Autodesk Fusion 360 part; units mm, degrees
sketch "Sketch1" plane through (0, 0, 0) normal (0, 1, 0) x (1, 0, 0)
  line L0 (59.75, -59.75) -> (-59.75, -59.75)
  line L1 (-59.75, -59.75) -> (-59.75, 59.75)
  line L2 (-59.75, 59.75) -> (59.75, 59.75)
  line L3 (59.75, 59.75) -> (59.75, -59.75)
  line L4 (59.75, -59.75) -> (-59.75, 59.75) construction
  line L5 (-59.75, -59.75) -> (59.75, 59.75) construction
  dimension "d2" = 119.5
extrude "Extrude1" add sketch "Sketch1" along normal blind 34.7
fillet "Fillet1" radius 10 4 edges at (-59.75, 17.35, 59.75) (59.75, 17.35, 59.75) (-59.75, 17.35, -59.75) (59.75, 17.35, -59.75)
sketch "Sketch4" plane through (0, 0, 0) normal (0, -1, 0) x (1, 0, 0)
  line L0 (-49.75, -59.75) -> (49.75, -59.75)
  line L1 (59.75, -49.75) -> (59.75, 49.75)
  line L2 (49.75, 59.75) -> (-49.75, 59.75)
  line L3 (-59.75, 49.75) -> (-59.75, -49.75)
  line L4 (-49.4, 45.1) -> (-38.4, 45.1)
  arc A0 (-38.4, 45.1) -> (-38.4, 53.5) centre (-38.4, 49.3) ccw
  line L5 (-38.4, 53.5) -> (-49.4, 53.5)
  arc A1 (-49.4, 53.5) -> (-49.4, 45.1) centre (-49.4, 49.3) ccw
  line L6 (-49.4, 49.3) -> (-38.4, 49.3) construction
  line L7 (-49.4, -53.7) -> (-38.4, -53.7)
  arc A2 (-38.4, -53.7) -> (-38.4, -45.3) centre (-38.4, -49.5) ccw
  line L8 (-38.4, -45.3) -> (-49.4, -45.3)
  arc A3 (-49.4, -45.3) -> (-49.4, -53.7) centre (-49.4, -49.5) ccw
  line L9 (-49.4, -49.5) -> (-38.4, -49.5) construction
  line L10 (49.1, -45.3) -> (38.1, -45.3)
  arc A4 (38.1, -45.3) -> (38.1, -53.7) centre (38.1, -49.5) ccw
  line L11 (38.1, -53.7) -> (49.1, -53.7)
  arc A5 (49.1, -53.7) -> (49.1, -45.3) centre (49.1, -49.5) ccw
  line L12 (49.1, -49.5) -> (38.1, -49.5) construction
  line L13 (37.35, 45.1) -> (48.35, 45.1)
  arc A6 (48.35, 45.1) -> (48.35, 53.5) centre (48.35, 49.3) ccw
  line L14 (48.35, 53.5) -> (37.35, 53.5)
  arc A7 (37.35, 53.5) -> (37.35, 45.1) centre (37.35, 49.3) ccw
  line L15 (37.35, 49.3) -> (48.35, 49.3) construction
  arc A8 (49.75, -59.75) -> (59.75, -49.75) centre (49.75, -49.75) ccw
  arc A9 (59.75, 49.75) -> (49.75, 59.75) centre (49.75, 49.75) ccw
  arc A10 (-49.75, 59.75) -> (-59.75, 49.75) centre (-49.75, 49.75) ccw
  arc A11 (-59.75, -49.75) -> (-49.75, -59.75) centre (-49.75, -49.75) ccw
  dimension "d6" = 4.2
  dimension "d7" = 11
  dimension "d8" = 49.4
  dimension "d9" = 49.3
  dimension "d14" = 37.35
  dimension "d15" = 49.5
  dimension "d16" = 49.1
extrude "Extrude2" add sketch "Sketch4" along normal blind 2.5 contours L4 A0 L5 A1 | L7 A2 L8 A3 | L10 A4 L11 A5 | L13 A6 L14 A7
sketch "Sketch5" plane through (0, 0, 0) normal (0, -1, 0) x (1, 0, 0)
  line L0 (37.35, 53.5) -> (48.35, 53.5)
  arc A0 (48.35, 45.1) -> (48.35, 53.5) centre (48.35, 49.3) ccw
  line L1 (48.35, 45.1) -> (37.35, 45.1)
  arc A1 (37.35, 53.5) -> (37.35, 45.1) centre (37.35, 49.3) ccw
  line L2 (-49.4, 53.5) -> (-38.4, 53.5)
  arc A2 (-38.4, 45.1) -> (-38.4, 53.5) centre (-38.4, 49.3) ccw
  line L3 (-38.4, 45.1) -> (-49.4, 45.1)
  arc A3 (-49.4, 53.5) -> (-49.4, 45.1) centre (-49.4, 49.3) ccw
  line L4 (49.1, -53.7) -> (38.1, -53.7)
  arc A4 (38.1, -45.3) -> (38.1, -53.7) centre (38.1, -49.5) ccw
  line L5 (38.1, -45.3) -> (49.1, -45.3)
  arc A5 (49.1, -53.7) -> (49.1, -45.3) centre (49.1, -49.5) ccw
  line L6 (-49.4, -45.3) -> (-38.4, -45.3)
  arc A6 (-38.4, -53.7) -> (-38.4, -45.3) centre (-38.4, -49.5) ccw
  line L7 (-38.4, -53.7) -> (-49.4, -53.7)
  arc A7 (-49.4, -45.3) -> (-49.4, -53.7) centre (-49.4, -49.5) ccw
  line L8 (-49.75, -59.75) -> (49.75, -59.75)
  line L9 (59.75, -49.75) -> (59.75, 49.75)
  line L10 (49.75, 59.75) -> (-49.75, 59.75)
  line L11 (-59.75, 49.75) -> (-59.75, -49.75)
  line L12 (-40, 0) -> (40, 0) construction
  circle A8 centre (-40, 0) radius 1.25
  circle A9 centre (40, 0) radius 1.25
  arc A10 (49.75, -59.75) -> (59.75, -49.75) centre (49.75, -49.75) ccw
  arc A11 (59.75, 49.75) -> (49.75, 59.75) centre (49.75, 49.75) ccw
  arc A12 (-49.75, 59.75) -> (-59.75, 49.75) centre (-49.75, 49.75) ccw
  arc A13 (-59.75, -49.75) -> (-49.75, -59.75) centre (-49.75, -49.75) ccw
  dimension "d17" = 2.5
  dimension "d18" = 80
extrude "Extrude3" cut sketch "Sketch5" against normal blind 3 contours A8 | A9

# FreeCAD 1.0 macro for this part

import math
import FreeCAD as App
import Part
import Sketcher
from FreeCAD import Vector


def edges_at(feature, points):
    """Names of the edges that pass closest to the given points."""
    edges = feature.Shape.Edges
    near = lambda p: min(range(len(edges)), key=lambda i: edges[i].distToShape(Part.Vertex(*p))[0])
    return sorted({f"Edge{near(p) + 1}" for p in points})

doc = App.newDocument("Part")
params = doc.addObject("Spreadsheet::Sheet", "Params")
for row, (alias, value) in enumerate([
    ("sketch1_width", "119.5 mm"),
    ("pad1_length", "34.7 mm"),
    ("fillet_radius", "10 mm"),
    ("sketch2_radius", "4.2 mm"),
    ("sketch2_width", "11 mm"),
    ("pad2_length", "2.5 mm"),
    ("sketch3_diameter", "2.5 mm"),
    ("pocket1_length", "3 mm"),
], start=1):
    params.set(f"A{row}", alias)
    params.set(f"B{row}", "=" + value)
    params.setAlias(f"B{row}", alias)

body = doc.addObject("PartDesign::Body", "Body")

# Sketch on XZ plane
sketch1 = doc.addObject("Sketcher::SketchObject", "Sketch")
body.addObject(sketch1)
sketch1.AttachmentSupport = (doc.XZ_Plane, [""])
sketch1.MapMode = "FlatFace"
sketch1.addGeometry(Part.LineSegment(Vector(-59.75, 59.75, 0), Vector(59.75, 59.75, 0)), False)
sketch1.addGeometry(Part.LineSegment(Vector(59.75, 59.75, 0), Vector(59.75, -59.75, 0)), False)
sketch1.addGeometry(Part.LineSegment(Vector(59.75, -59.75, 0), Vector(-59.75, -59.75, 0)), False)
sketch1.addGeometry(Part.LineSegment(Vector(-59.75, -59.75, 0), Vector(-59.75, 59.75, 0)), False)
sketch1.addConstraint(Sketcher.Constraint("Coincident", 0, 2, 1, 1))
sketch1.addConstraint(Sketcher.Constraint("Coincident", 1, 2, 2, 1))
sketch1.addConstraint(Sketcher.Constraint("Coincident", 2, 2, 3, 1))
sketch1.addConstraint(Sketcher.Constraint("Coincident", 3, 2, 0, 1))
sketch1.addConstraint(Sketcher.Constraint("Horizontal", 0))
sketch1.addConstraint(Sketcher.Constraint("Vertical", 1))
sketch1.addConstraint(Sketcher.Constraint("Horizontal", 2))
sketch1.addConstraint(Sketcher.Constraint("Vertical", 3))
sketch1.addConstraint(Sketcher.Constraint("Symmetric", 0, 2, 2, 2, -1, 1))
sketch1.addConstraint(Sketcher.Constraint("Equal", 2, 1))
sketch1.addConstraint(Sketcher.Constraint("DistanceX", 0, 1, 0, 2, 119.5))
sketch1.setExpression("Constraints[10]", "Params.sketch1_width")
pad1 = doc.addObject("PartDesign::Pad", "Pad")
body.addObject(pad1)
pad1.Profile = sketch1
pad1.setExpression("Length", "Params.pad1_length")
pad1.Reversed = True
doc.recompute()

fillet = doc.addObject("PartDesign::Fillet", "Fillet")
body.addObject(fillet)
fillet.Base = (pad1, edges_at(pad1, [
    (-59.75, 17.35, 59.75),
    (59.75, 17.35, 59.75),
    (-59.75, 17.35, -59.75),
    (59.75, 17.35, -59.75),
]))
fillet.setExpression("Radius", "Params.fillet_radius")

# Sketch on XZ plane
sketch2 = doc.addObject("Sketcher::SketchObject", "Sketch001")
body.addObject(sketch2)
sketch2.AttachmentSupport = (doc.XZ_Plane, [""])
sketch2.MapMode = "FlatFace"
sketch2.addGeometry(Part.ArcOfCircle(Part.Circle(Vector(-49.4, 49.3, 0), Vector(0, 0, 1), 4.2), math.radians(90), math.radians(270)), False)
sketch2.addGeometry(Part.LineSegment(Vector(-49.4, 45.1, 0), Vector(-38.4, 45.1, 0)), False)
sketch2.addGeometry(Part.ArcOfCircle(Part.Circle(Vector(-38.4, 49.3, 0), Vector(0, 0, 1), 4.2), math.radians(-90), math.radians(90)), False)
sketch2.addGeometry(Part.LineSegment(Vector(-38.4, 53.5, 0), Vector(-49.4, 53.5, 0)), False)
sketch2.addGeometry(Part.ArcOfCircle(Part.Circle(Vector(-49.4, -49.5, 0), Vector(0, 0, 1), 4.2), math.radians(90), math.radians(270)), False)
sketch2.addGeometry(Part.LineSegment(Vector(-49.4, -53.7, 0), Vector(-38.4, -53.7, 0)), False)
sketch2.addGeometry(Part.ArcOfCircle(Part.Circle(Vector(-38.4, -49.5, 0), Vector(0, 0, 1), 4.2), math.radians(-90), math.radians(90)), False)
sketch2.addGeometry(Part.LineSegment(Vector(-38.4, -45.3, 0), Vector(-49.4, -45.3, 0)), False)
sketch2.addGeometry(Part.ArcOfCircle(Part.Circle(Vector(49.1, -49.5, 0), Vector(0, 0, 1), 4.2), math.radians(-90), math.radians(90)), False)
sketch2.addGeometry(Part.LineSegment(Vector(49.1, -45.3, 0), Vector(38.1, -45.3, 0)), False)
sketch2.addGeometry(Part.ArcOfCircle(Part.Circle(Vector(38.1, -49.5, 0), Vector(0, 0, 1), 4.2), math.radians(90), math.radians(270)), False)
sketch2.addGeometry(Part.LineSegment(Vector(38.1, -53.7, 0), Vector(49.1, -53.7, 0)), False)
sketch2.addGeometry(Part.ArcOfCircle(Part.Circle(Vector(37.35, 49.3, 0), Vector(0, 0, 1), 4.2), math.radians(90), math.radians(270)), False)
sketch2.addGeometry(Part.LineSegment(Vector(37.35, 45.1, 0), Vector(48.35, 45.1, 0)), False)
sketch2.addGeometry(Part.ArcOfCircle(Part.Circle(Vector(48.35, 49.3, 0), Vector(0, 0, 1), 4.2), math.radians(-90), math.radians(90)), False)
sketch2.addGeometry(Part.LineSegment(Vector(48.35, 53.5, 0), Vector(37.35, 53.5, 0)), False)
sketch2.addConstraint(Sketcher.Constraint("Tangent", 0, 2, 1, 1))
sketch2.addConstraint(Sketcher.Constraint("Tangent", 1, 2, 2, 1))
sketch2.addConstraint(Sketcher.Constraint("Tangent", 2, 2, 3, 1))
sketch2.addConstraint(Sketcher.Constraint("Tangent", 3, 2, 0, 1))
sketch2.addConstraint(Sketcher.Constraint("Tangent", 4, 2, 5, 1))
sketch2.addConstraint(Sketcher.Constraint("Tangent", 5, 2, 6, 1))
sketch2.addConstraint(Sketcher.Constraint("Tangent", 6, 2, 7, 1))
sketch2.addConstraint(Sketcher.Constraint("Tangent", 7, 2, 4, 1))
sketch2.addConstraint(Sketcher.Constraint("Tangent", 8, 2, 9, 1))
sketch2.addConstraint(Sketcher.Constraint("Tangent", 9, 2, 10, 1))
sketch2.addConstraint(Sketcher.Constraint("Tangent", 10, 2, 11, 1))
sketch2.addConstraint(Sketcher.Constraint("Tangent", 11, 2, 8, 1))
sketch2.addConstraint(Sketcher.Constraint("Tangent", 12, 2, 13, 1))
sketch2.addConstraint(Sketcher.Constraint("Tangent", 13, 2, 14, 1))
sketch2.addConstraint(Sketcher.Constraint("Tangent", 14, 2, 15, 1))
sketch2.addConstraint(Sketcher.Constraint("Tangent", 15, 2, 12, 1))
sketch2.addConstraint(Sketcher.Constraint("Horizontal", 1))
sketch2.addConstraint(Sketcher.Constraint("Horizontal", 3))
sketch2.addConstraint(Sketcher.Constraint("Horizontal", 5))
sketch2.addConstraint(Sketcher.Constraint("Horizontal", 7))
sketch2.addConstraint(Sketcher.Constraint("Horizontal", 9))
sketch2.addConstraint(Sketcher.Constraint("Horizontal", 11))
sketch2.addConstraint(Sketcher.Constraint("Horizontal", 13))
sketch2.addConstraint(Sketcher.Constraint("Horizontal", 15))
sketch2.addConstraint(Sketcher.Constraint("Equal", 2, 4))
sketch2.addConstraint(Sketcher.Constraint("Equal", 6, 8))
sketch2.addConstraint(Sketcher.Constraint("Equal", 10, 12))
sketch2.addConstraint(Sketcher.Constraint("Horizontal", 6, 3, 8, 3))
sketch2.addConstraint(Sketcher.Constraint("Horizontal", 2, 3, 12, 3))
sketch2.addConstraint(Sketcher.Constraint("Vertical", 0, 3, 4, 3))
sketch2.addConstraint(Sketcher.Constraint("Vertical", 2, 3, 6, 3))
sketch2.addConstraint(Sketcher.Constraint("Equal", 7, 9))
sketch2.addConstraint(Sketcher.Constraint("Equal", 11, 13))
sketch2.addConstraint(Sketcher.Constraint("Radius", 0, 4.2))
sketch2.addConstraint(Sketcher.Constraint("DistanceX", 1, 1, 1, 2, 11.0))
sketch2.addConstraint(Sketcher.Constraint("DistanceX", 0, 3, -1, 1, 49.4))
sketch2.addConstraint(Sketcher.Constraint("DistanceY", -1, 1, 0, 3, 49.3))
sketch2.addConstraint(Sketcher.Constraint("DistanceY", 4, 3, -1, 1, 49.5))
sketch2.addConstraint(Sketcher.Constraint("DistanceX", -1, 1, 8, 3, 49.1))
sketch2.addConstraint(Sketcher.Constraint("DistanceX", -1, 1, 12, 3, 37.35))
sketch2.setExpression("Constraints[33]", "Params.sketch2_radius")
sketch2.setExpression("Constraints[34]", "Params.sketch2_width")
pad2 = doc.addObject("PartDesign::Pad", "Pad001")
body.addObject(pad2)
pad2.Profile = sketch2
pad2.setExpression("Length", "Params.pad2_length")

# Sketch on XZ plane
sketch3 = doc.addObject("Sketcher::SketchObject", "Sketch002")
body.addObject(sketch3)
sketch3.AttachmentSupport = (doc.XZ_Plane, [""])
sketch3.MapMode = "FlatFace"
sketch3.addGeometry(Part.Circle(Vector(-40, 0, 0), Vector(0, 0, 1), 1.25), False)
sketch3.addGeometry(Part.Circle(Vector(40, 0, 0), Vector(0, 0, 1), 1.25), False)
sketch3.addConstraint(Sketcher.Constraint("Equal", 0, 1))
sketch3.addConstraint(Sketcher.Constraint("Symmetric", 0, 3, 1, 3, -1, 1))
sketch3.addConstraint(Sketcher.Constraint("PointOnObject", 0, 3, -1))
sketch3.addConstraint(Sketcher.Constraint("Diameter", 0, 2.5))
sketch3.addConstraint(Sketcher.Constraint("DistanceX", 0, 3, 1, 3, 80.0))
sketch3.setExpression("Constraints[3]", "Params.sketch3_diameter")
pocket1 = doc.addObject("PartDesign::Pocket", "Pocket")
body.addObject(pocket1)
pocket1.Profile = sketch3
pocket1.setExpression("Length", "Params.pocket1_length")

doc.recompute()
